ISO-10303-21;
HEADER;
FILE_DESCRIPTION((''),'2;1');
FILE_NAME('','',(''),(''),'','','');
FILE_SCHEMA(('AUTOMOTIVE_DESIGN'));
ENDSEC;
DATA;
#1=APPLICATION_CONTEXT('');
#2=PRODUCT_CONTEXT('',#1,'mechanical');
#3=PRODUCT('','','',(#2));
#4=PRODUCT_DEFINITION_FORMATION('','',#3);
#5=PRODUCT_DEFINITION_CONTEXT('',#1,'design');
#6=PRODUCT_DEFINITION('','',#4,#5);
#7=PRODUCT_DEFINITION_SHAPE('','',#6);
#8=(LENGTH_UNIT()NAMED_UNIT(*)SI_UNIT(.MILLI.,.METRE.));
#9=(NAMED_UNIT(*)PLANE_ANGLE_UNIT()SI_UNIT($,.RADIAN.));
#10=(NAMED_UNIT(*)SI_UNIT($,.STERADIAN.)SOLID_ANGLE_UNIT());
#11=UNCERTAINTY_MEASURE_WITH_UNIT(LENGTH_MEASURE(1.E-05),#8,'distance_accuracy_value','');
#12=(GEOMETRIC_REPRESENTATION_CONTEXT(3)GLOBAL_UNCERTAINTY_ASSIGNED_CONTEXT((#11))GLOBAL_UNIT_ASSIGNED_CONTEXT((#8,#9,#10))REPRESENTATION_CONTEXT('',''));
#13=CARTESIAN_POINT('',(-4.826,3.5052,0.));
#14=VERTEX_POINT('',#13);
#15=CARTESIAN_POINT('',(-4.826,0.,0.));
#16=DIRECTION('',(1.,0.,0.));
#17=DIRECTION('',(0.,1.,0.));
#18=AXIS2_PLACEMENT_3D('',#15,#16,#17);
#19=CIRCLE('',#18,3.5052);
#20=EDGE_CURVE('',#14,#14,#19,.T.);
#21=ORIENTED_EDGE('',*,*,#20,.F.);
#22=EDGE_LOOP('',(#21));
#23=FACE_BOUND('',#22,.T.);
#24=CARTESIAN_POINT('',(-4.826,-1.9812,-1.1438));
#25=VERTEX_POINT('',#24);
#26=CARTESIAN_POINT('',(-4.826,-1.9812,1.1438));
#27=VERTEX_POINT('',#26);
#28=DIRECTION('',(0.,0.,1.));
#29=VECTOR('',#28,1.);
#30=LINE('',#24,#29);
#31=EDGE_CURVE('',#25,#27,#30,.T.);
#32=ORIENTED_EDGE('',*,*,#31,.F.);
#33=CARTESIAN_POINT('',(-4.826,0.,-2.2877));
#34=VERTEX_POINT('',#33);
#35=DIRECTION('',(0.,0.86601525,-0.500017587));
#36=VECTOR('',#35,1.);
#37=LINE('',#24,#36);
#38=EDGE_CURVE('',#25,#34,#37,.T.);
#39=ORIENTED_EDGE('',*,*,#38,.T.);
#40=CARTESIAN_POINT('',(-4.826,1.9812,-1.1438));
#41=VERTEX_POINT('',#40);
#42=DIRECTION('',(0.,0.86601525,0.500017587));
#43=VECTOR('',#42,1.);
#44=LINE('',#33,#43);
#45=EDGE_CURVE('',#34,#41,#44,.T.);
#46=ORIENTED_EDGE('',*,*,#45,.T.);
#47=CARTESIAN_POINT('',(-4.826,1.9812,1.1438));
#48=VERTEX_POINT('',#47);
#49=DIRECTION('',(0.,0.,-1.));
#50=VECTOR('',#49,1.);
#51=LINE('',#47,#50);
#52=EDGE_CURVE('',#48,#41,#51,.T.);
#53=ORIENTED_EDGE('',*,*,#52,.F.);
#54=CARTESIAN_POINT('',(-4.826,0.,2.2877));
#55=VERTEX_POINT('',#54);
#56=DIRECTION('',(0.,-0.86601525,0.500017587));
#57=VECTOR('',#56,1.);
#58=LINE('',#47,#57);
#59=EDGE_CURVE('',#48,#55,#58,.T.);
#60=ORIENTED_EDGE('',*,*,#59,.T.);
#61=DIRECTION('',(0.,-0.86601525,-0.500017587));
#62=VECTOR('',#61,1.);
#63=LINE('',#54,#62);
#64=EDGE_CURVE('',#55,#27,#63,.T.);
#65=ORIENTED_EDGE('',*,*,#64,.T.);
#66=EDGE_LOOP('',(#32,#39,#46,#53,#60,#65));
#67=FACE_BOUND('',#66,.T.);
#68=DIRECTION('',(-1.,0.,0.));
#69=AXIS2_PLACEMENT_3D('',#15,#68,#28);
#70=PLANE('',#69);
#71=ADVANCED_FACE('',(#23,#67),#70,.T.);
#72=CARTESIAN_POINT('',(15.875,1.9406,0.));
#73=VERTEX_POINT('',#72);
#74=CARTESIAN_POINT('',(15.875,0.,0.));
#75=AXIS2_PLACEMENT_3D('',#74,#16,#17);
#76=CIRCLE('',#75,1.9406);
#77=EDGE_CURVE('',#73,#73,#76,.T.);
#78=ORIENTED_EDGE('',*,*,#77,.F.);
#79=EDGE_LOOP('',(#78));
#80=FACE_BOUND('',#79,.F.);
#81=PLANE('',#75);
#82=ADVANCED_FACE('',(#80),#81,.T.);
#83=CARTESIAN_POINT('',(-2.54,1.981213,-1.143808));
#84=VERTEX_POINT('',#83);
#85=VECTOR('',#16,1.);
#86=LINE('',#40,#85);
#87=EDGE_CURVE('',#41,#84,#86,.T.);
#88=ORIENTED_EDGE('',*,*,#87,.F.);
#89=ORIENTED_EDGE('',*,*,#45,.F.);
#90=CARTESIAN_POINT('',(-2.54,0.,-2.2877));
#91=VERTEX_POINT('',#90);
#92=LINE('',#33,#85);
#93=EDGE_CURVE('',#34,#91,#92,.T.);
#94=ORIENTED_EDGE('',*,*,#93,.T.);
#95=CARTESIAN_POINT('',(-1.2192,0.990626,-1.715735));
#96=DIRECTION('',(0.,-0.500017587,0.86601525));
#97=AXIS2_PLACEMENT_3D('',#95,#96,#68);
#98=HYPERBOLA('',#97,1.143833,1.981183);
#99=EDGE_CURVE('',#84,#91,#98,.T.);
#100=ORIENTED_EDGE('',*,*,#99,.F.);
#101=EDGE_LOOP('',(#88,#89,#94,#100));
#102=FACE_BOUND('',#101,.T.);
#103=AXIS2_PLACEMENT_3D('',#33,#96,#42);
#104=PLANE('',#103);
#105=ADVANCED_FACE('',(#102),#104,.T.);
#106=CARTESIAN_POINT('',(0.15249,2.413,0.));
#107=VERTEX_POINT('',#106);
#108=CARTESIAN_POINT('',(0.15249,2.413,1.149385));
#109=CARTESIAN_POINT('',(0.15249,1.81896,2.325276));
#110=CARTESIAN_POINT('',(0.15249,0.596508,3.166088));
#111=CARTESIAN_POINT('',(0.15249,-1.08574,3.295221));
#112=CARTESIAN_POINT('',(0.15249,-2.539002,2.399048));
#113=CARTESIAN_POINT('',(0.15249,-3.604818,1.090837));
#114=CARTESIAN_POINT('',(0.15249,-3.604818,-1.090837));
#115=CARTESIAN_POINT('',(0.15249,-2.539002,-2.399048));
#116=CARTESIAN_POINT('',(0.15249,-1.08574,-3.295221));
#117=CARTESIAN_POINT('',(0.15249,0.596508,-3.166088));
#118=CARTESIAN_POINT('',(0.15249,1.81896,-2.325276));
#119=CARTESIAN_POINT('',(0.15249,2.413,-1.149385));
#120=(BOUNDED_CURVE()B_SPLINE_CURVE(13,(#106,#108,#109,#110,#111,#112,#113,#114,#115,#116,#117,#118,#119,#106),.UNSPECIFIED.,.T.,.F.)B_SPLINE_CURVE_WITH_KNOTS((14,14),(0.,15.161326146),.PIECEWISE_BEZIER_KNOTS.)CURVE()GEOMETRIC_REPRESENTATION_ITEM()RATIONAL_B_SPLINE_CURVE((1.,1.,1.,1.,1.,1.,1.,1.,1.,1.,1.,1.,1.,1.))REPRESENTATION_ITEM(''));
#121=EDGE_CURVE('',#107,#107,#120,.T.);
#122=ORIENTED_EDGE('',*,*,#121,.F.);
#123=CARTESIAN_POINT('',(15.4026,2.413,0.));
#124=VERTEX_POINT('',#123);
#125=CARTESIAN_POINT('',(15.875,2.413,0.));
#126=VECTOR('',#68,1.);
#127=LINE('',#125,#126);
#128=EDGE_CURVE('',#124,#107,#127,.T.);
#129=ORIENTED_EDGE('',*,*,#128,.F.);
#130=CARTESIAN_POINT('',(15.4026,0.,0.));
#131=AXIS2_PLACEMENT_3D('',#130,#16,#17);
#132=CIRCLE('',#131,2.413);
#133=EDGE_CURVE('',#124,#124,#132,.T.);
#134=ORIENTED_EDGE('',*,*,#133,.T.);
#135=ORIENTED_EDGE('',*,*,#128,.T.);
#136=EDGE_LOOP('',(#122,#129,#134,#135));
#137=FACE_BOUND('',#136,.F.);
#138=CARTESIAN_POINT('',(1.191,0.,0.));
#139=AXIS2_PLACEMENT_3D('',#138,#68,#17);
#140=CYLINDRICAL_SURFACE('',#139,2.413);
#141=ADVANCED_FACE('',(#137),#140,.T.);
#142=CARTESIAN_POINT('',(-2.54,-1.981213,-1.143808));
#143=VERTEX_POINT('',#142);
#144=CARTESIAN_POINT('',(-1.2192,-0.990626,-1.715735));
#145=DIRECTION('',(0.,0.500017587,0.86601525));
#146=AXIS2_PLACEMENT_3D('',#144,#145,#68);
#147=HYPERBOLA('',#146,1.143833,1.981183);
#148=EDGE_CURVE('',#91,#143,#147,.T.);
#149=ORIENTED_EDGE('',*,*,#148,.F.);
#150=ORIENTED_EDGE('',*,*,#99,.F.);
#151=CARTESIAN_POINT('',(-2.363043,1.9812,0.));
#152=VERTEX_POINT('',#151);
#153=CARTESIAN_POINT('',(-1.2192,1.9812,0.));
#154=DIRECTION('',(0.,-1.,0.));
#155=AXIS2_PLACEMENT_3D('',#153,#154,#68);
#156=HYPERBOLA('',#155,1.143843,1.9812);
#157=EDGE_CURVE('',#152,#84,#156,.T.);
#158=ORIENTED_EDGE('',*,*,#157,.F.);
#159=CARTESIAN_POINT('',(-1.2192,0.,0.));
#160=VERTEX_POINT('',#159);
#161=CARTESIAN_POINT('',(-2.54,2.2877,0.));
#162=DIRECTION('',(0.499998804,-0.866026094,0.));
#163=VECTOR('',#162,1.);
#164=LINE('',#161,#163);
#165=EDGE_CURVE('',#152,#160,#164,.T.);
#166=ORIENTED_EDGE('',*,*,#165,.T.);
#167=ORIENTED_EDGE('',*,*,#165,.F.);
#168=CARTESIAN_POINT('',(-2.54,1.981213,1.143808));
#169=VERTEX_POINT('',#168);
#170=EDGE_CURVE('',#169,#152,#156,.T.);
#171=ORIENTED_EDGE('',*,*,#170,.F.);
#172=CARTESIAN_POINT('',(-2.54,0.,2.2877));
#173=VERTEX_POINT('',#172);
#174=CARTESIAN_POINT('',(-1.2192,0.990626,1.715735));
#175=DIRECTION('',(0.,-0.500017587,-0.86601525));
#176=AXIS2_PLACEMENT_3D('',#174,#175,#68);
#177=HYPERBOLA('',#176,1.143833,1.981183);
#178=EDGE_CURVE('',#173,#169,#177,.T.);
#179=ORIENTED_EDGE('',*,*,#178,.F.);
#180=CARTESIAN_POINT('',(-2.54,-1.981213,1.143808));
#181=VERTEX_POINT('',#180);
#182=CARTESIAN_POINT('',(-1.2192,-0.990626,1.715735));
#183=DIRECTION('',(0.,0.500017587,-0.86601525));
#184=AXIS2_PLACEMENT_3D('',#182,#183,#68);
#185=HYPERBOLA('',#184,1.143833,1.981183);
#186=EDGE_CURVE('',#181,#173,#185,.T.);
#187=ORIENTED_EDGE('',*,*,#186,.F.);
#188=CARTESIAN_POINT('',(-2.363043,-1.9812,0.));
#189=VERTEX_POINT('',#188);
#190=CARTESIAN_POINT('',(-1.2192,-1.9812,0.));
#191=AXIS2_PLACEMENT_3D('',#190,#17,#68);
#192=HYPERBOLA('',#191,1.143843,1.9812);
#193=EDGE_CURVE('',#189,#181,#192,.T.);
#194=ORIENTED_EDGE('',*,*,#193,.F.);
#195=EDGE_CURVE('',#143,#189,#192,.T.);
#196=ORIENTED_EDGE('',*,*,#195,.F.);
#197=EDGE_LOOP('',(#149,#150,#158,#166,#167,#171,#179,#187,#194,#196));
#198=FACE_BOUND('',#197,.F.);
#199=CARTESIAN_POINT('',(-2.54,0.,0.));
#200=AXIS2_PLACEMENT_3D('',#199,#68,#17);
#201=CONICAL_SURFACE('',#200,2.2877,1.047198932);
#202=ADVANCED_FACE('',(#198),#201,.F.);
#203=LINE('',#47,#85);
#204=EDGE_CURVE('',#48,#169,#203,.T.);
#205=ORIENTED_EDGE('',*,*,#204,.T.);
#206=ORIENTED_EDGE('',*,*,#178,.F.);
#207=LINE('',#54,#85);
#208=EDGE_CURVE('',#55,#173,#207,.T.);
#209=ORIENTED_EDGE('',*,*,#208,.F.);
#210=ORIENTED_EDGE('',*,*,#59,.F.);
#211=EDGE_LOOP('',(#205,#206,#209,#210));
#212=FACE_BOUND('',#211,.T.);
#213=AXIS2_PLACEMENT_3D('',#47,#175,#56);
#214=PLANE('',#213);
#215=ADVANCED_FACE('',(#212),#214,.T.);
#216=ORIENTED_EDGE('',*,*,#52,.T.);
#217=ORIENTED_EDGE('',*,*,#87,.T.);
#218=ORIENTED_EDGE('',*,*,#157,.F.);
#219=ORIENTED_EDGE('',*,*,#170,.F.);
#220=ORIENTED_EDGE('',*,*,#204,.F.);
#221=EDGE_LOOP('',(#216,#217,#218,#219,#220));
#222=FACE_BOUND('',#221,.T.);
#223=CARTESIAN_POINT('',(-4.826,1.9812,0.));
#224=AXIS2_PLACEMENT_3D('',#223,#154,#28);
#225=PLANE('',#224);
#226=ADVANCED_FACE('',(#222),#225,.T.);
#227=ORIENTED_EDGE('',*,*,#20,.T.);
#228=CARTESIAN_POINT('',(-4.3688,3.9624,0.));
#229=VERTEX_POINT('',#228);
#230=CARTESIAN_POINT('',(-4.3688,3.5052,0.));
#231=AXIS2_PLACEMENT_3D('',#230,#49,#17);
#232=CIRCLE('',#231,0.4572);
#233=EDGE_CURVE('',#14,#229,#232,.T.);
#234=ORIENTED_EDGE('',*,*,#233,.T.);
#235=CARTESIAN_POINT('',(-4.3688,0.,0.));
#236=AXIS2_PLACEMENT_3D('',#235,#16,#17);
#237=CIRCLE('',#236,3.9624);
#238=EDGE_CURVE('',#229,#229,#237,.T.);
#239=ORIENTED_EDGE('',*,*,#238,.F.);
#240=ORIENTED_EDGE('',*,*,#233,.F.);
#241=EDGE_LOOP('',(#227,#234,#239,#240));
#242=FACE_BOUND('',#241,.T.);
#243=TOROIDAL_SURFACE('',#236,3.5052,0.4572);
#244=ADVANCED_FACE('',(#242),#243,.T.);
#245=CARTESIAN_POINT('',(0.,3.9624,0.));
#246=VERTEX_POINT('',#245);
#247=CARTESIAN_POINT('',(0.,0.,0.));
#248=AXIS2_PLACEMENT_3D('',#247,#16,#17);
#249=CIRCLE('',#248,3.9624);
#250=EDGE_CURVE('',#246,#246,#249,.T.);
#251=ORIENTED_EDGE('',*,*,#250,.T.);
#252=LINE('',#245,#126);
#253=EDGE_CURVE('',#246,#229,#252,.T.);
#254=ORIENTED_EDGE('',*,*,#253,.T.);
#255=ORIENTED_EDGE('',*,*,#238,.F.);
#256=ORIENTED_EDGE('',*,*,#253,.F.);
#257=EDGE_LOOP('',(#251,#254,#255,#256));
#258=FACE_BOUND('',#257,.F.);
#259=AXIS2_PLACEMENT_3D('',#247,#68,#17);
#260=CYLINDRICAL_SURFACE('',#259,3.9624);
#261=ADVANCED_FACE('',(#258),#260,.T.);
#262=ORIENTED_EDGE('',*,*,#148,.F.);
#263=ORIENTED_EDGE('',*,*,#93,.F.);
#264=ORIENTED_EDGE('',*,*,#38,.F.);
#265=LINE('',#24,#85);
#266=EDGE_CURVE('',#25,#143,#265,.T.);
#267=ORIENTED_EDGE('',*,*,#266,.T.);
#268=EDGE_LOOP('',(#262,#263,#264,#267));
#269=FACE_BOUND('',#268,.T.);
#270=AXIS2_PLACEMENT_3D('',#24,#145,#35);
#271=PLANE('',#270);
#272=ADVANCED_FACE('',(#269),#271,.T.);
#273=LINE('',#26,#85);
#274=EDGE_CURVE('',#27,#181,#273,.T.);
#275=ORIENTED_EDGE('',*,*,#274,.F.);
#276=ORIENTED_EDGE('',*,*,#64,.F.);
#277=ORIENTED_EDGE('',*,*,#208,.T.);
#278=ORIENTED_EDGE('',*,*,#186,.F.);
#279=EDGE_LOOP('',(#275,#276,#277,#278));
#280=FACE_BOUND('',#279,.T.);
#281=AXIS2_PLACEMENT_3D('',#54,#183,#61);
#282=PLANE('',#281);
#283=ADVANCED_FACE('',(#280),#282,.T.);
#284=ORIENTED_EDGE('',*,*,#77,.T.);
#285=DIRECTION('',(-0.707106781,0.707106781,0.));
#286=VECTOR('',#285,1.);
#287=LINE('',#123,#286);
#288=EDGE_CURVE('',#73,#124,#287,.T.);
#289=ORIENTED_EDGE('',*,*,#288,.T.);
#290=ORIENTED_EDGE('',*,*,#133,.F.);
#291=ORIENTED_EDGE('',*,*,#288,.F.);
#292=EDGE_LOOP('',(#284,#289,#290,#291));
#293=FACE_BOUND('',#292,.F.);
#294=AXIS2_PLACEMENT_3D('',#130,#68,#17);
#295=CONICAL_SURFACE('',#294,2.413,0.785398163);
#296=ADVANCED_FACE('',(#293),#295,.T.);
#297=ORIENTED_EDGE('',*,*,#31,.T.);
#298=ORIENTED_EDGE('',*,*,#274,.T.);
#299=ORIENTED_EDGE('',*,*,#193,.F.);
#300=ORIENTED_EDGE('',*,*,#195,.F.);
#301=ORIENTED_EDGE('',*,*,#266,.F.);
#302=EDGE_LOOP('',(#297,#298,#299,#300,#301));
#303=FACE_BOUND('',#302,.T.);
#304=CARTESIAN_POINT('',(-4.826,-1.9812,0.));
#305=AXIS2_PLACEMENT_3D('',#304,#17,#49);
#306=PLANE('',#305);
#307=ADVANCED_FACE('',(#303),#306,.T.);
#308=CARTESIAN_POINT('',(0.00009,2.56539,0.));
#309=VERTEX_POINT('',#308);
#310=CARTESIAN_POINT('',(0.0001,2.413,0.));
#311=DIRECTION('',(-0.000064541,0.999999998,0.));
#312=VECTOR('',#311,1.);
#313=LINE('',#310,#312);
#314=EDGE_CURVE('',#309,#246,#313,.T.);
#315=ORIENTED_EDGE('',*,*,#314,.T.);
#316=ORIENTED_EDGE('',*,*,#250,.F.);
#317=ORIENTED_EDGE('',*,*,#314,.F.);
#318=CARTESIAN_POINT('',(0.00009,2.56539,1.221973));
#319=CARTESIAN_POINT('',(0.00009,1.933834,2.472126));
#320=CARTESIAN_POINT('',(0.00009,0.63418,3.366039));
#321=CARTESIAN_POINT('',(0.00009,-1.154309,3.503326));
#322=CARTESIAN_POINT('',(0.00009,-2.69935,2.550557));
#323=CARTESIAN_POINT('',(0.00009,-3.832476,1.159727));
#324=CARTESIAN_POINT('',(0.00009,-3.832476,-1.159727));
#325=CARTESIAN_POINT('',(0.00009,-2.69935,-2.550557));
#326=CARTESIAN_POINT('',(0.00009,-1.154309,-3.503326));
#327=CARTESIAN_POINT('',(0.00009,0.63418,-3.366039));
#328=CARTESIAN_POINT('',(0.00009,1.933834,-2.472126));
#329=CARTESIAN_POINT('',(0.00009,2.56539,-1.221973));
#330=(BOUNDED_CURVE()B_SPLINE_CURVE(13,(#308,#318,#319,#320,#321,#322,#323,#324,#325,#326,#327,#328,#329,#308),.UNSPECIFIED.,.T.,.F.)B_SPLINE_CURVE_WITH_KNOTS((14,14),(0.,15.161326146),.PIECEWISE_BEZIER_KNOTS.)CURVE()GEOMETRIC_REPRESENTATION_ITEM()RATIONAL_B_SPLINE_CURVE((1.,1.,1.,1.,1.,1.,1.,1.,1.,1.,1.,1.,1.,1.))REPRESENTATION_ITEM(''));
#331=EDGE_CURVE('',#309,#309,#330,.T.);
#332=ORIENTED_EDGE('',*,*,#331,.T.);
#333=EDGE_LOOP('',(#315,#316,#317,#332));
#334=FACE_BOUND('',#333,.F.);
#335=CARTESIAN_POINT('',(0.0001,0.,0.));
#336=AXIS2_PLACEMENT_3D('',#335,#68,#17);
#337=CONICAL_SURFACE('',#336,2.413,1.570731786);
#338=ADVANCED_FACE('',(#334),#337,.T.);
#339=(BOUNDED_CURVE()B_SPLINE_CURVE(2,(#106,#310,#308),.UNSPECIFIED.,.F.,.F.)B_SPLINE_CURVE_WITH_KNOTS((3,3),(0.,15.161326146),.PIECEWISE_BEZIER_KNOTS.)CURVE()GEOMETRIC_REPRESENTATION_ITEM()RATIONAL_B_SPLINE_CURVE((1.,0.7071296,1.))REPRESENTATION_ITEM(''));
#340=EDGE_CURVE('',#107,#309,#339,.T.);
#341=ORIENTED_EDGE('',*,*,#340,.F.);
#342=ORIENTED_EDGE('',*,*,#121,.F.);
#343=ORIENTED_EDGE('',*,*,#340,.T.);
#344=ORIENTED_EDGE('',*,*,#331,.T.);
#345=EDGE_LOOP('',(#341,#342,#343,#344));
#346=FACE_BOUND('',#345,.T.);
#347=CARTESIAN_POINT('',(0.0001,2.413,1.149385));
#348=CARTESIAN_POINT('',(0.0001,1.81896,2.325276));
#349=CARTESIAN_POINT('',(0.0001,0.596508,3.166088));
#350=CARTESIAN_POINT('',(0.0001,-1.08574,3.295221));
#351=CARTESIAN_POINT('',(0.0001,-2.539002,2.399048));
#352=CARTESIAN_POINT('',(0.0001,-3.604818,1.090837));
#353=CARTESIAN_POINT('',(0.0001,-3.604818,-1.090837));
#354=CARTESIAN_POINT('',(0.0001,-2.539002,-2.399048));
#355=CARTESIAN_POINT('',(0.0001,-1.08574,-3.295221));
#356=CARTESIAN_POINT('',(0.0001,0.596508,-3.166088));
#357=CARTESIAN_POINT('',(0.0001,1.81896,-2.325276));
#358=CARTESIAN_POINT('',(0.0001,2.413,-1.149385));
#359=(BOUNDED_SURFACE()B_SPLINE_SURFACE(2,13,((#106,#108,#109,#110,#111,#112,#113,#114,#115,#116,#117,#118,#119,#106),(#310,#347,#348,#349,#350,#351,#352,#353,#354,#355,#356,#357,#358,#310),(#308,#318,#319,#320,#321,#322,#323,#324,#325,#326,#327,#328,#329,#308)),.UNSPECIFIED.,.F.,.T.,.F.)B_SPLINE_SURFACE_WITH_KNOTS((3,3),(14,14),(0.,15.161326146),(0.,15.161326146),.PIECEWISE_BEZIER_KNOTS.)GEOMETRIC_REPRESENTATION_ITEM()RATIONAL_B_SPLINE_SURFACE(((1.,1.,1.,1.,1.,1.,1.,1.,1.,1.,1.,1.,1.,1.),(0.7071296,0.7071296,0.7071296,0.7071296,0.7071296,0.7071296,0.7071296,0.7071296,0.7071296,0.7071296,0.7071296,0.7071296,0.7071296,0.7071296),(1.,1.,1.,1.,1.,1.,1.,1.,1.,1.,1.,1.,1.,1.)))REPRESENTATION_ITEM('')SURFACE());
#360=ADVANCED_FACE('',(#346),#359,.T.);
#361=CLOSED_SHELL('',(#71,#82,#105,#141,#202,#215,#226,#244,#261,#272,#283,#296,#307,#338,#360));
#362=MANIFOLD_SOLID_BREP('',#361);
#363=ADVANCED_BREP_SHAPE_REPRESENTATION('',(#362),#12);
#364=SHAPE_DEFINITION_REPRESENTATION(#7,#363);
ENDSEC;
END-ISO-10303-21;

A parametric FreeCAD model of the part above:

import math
import FreeCAD as App
import Part
import Sketcher
from FreeCAD import Vector
Q = App.Units.Quantity


def edges_at(feature, points):
    """Names of the edges that pass closest to the given points."""
    edges = feature.Shape.Edges
    near = lambda p: min(range(len(edges)), key=lambda i: edges[i].distToShape(Part.Vertex(*p))[0])
    return sorted({f"Edge{near(p) + 1}" for p in points})


def add_polygon(sketch, points):
    """Adds a closed chain of lines whose ends are joined by coincident constraints."""
    first, n = sketch.GeometryCount, len(points)
    for a, b in zip(points, points[1:] + points[:1]):
        sketch.addGeometry(Part.LineSegment(App.Vector(*a, 0), App.Vector(*b, 0)), False)
    for i in range(n):
        sketch.addConstraint(Sketcher.Constraint("Coincident", first + i, 2, first + (i + 1) % n, 1))

doc = App.newDocument("Part")
params = doc.addObject("Spreadsheet::Sheet", "Params")
for row, (alias, value) in enumerate([
    ("sketch1_width", "0.19 in"),
    ("sketch1_width2", "0.09 in"),
    ("sketch1_width3", "0.625 in"),
    ("sketch1_width4", "0.673 in"),
    ("sketch1_height", "0.095 in"),
    ("revolution_angle", "360 deg"),
    ("pad1_length", "2.463 mm"),
    ("fillet_radius", "0.018 in"),
    ("chamfer_size", "0.0185984 in"),
    ("chamfer_size2", "0.0185984 in"),
    ("fillet2_radius", "0.006 in"),
], start=1):
    params.set(f"A{row}", alias)
    params.set(f"B{row}", "=" + value)
    params.setAlias(f"B{row}", alias)

body = doc.addObject("PartDesign::Body", "Body")

# Sketch on XY plane
sketch1 = body.newObject("Sketcher::SketchObject", "Sketch")
sketch1.AttachmentSupport = (doc.getObject("XY_Plane"), [""])
sketch1.MapMode = "FlatFace"
add_polygon(sketch1, [(-2.5, 2.3), (-1.2, 0), (15.9, 0), (15.9, 2.4), (0, 2.4), (0, 4), (-4.8, 4), (-4.8, 2.3)])  # lines 0-7
sketch1.addConstraint([
    Sketcher.Constraint("Horizontal", 1),
    Sketcher.Constraint("Vertical", 2),
    Sketcher.Constraint("Horizontal", 3),
    Sketcher.Constraint("Vertical", 4),
    Sketcher.Constraint("Horizontal", 5),
    Sketcher.Constraint("Vertical", 6),
    Sketcher.Constraint("Horizontal", 7),
    Sketcher.Constraint("PointOnObject", 0, 2, -1),
    Sketcher.Constraint("PointOnObject", 3, 2, -2),
    Sketcher.Constraint("Angle", 0, Q("-60 deg")),
    Sketcher.Constraint("DistanceX", 5, 2, 5, 1, Q("0.19 in")),
    Sketcher.Constraint("DistanceX", 7, 1, 7, 2, Q("0.09 in")),
    Sketcher.Constraint("DistanceX", 3, 2, 3, 1, Q("0.625 in")),
    Sketcher.Constraint("DistanceX", 1, 1, 1, 2, Q("0.673 in")),
    Sketcher.Constraint("DistanceY", 2, 1, 2, 2, Q("0.095 in")),
    Sketcher.Constraint("DistanceY", 4, 1, 4, 2, Q("0.061 in")),
])
sketch1.setExpression("Constraints[18]", "Params.sketch1_width")
sketch1.setExpression("Constraints[19]", "Params.sketch1_width2")
sketch1.setExpression("Constraints[20]", "Params.sketch1_width3")
sketch1.setExpression("Constraints[21]", "Params.sketch1_width4")
sketch1.setExpression("Constraints[22]", "Params.sketch1_height")
revolution = body.newObject("PartDesign::Revolution", "Revolution")
revolution.Profile = sketch1
revolution.ReferenceAxis = (sketch1, ["H_Axis"])
revolution.setExpression("Angle", "Params.revolution_angle")

# Sketch on YZ plane
sketch2 = body.newObject("Sketcher::SketchObject", "Sketch001")
sketch2.AttachmentSupport = (doc.getObject("YZ_Plane"), [""])
sketch2.MapMode = "FlatFace"
sketch2.AttachmentOffset = App.Placement(Vector(0, 0, -0.19 * 25.4), App.Rotation())
sketch2.addGeometry([
    Part.LineSegment(Vector(2, 1.1, 0), Vector(0, 2.3, 0)),  # 0
    Part.ArcOfCircle(Part.Circle(Vector(0, 0, 0), Vector(0, 0, 1), 2.3), math.radians(30), math.radians(90)),  # 1
    Part.ArcOfCircle(Part.Circle(Vector(0, 0, 0), Vector(0, 0, 1), 2.3), math.radians(90), math.radians(150)),  # 2
    Part.LineSegment(Vector(0, 2.3, 0), Vector(-2, 1.1, 0)),  # 3
    Part.ArcOfCircle(Part.Circle(Vector(0, 0, 0), Vector(0, 0, 1), 2.3), math.radians(-30), math.radians(30)),  # 4
    Part.LineSegment(Vector(2, 1.1, 0), Vector(2, -1.1, 0)),  # 5
    Part.LineSegment(Vector(-2, 1.1, 0), Vector(-2, -1.1, 0)),  # 6
    Part.ArcOfCircle(Part.Circle(Vector(0, 0, 0), Vector(0, 0, 1), 2.3), math.radians(150), math.radians(210)),  # 7
    Part.LineSegment(Vector(-2, -1.1, 0), Vector(0, -2.3, 0)),  # 8
    Part.ArcOfCircle(Part.Circle(Vector(0, 0, 0), Vector(0, 0, 1), 2.3), math.radians(-150), math.radians(-90)),  # 9
    Part.ArcOfCircle(Part.Circle(Vector(0, 0, 0), Vector(0, 0, 1), 2.3), math.radians(-90), math.radians(-30)),  # 10
    Part.LineSegment(Vector(0, -2.3, 0), Vector(2, -1.1, 0)),  # 11
], False)
sketch2.addConstraint([
    Sketcher.Constraint("Coincident", 0, 1, 1, 1),
    Sketcher.Constraint("Coincident", 1, 2, 0, 2),
    Sketcher.Constraint("Coincident", 2, 1, 3, 1),
    Sketcher.Constraint("Coincident", 3, 2, 2, 2),
    Sketcher.Constraint("Coincident", 4, 1, 5, 2),
    Sketcher.Constraint("Coincident", 5, 1, 4, 2),
    Sketcher.Constraint("Coincident", 6, 1, 7, 1),
    Sketcher.Constraint("Coincident", 7, 2, 6, 2),
    Sketcher.Constraint("Coincident", 8, 1, 9, 1),
    Sketcher.Constraint("Coincident", 9, 2, 8, 2),
    Sketcher.Constraint("Coincident", 10, 1, 11, 1),
    Sketcher.Constraint("Coincident", 11, 2, 10, 2),
    Sketcher.Constraint("Vertical", 5),
    Sketcher.Constraint("Vertical", 6),
    Sketcher.Constraint("Coincident", 1, 3, -1, 1),
    Sketcher.Constraint("Coincident", 2, 3, -1, 1),
    Sketcher.Constraint("Coincident", 4, 3, -1, 1),
    Sketcher.Constraint("Coincident", 7, 3, -1, 1),
    Sketcher.Constraint("Coincident", 9, 3, -1, 1),
    Sketcher.Constraint("Coincident", 10, 3, -1, 1),
    Sketcher.Constraint("Coincident", 2, 1, 1, 2),
    Sketcher.Constraint("Coincident", 5, 1, 0, 1),
    Sketcher.Constraint("Coincident", 6, 1, 3, 2),
    Sketcher.Constraint("Coincident", 8, 1, 7, 2),
    Sketcher.Constraint("Coincident", 10, 1, 9, 2),
    Sketcher.Constraint("PointOnObject", 1, 2, -2),
    Sketcher.Constraint("PointOnObject", 9, 2, -2),
    Sketcher.Constraint("Parallel", 0, 8),
    Sketcher.Constraint("Parallel", 3, 11),
    Sketcher.Constraint("Angle", 0, Q("149.9988 deg")),
    Sketcher.Constraint("Radius", 1, Q("2.2877 mm")),
])
pad1 = body.newObject("PartDesign::Pad", "Pad")
pad1.Profile = sketch2
pad1.setExpression("Length", "Params.pad1_length")
doc.recompute()

fillet = body.newObject("PartDesign::Fillet", "Fillet")
fillet.Base = (pad1, edges_at(pad1, [(-4.826, -3.962, 0)]))
fillet.setExpression("Radius", "Params.fillet_radius")
doc.recompute()

chamfer = body.newObject("PartDesign::Chamfer", "Chamfer")
chamfer.Base = (fillet, edges_at(fillet, [(15.875, -2.413, 0)]))
chamfer.ChamferType = "Two distances"
chamfer.setExpression("Size", "Params.chamfer_size")
chamfer.setExpression("Size2", "Params.chamfer_size2")
doc.recompute()

fillet2 = body.newObject("PartDesign::Fillet", "Fillet001")
fillet2.Base = (chamfer, edges_at(chamfer, [(0, -2.413, 0)]))
fillet2.setExpression("Radius", "Params.fillet2_radius")

doc.recompute()
